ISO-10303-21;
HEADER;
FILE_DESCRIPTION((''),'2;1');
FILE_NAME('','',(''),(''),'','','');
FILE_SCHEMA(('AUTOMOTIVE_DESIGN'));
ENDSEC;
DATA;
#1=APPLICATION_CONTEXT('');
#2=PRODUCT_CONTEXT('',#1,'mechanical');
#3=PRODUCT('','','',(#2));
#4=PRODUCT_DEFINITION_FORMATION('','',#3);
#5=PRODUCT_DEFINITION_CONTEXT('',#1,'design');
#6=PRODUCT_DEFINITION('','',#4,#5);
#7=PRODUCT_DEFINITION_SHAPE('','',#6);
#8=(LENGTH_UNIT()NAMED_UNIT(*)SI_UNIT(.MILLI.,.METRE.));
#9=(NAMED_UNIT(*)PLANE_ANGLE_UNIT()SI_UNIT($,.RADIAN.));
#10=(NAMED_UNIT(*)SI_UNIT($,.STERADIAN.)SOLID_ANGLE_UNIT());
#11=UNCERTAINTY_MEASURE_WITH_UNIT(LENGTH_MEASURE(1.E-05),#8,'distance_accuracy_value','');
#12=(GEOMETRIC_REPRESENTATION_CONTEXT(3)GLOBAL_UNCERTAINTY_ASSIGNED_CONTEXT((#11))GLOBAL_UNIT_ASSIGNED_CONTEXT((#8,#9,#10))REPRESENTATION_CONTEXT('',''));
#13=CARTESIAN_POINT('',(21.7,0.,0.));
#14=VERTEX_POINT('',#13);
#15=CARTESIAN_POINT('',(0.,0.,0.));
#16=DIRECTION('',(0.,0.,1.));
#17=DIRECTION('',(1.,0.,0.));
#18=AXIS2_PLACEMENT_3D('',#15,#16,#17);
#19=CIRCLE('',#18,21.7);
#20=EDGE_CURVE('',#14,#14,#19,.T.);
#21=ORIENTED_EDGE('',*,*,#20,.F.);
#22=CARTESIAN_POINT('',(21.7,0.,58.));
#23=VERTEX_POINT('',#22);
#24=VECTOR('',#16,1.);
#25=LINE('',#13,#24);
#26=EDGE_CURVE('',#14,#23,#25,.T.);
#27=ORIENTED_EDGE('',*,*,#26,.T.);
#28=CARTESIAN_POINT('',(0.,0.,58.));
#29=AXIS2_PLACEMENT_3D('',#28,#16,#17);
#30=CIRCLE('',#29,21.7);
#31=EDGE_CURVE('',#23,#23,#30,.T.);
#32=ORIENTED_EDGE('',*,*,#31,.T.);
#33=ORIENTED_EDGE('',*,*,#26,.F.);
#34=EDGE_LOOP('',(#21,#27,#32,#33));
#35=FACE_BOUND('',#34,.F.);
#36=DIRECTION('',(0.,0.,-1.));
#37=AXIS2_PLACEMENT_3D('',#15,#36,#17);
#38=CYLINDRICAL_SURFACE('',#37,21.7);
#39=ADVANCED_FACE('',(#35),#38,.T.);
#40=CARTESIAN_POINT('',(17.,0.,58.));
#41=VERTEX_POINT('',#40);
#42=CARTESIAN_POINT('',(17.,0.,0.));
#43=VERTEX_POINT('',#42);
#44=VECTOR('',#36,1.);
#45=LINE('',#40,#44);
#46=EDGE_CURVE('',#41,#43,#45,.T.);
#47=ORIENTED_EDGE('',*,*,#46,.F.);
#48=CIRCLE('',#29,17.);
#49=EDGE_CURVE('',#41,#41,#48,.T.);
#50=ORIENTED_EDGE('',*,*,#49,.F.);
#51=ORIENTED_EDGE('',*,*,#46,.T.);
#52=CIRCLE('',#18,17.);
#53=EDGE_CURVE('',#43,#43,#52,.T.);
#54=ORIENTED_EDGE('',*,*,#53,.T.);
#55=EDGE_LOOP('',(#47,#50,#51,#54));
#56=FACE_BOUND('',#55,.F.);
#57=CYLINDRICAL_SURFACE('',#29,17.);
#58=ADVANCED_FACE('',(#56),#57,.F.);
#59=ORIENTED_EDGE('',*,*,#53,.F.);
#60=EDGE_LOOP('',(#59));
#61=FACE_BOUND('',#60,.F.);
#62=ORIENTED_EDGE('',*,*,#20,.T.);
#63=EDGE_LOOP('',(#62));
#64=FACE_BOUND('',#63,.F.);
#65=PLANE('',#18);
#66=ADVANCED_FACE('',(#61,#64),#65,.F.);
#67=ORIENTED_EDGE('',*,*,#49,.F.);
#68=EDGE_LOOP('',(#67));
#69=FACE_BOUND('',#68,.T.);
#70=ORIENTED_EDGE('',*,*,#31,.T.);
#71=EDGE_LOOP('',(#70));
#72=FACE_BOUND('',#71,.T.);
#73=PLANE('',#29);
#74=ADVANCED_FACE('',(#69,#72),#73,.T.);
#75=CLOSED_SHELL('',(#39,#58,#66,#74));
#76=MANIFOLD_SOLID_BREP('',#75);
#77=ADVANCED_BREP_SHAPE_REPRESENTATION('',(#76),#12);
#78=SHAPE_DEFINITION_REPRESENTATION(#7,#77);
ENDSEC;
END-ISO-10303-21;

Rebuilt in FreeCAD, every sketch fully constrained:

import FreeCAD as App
import Part
import Sketcher

V = App.Vector
Q = App.Units.Quantity

doc = App.newDocument("Part")
body = doc.addObject("PartDesign::Body", "Body")

sketch1 = doc.addObject("Sketcher::SketchObject", "Sketch")
body.addObject(sketch1)
sketch1.AttachmentSupport = (doc.XY_Plane, [""])
sketch1.MapMode = "FlatFace"
sketch1.addGeometry(Part.Circle(V(0, 0, 0), V(0, 0, 1), 22), False)
sketch1.addConstraint([
    Sketcher.Constraint("Coincident", 0, 3, -1, 1),
    Sketcher.Constraint("Diameter", 0, Q("43.4 mm")),
])
pad1 = doc.addObject("PartDesign::Pad", "Pad")
body.addObject(pad1)
pad1.Profile = sketch1
pad1.Length = 58

sketch2 = doc.addObject("Sketcher::SketchObject", "Sketch001")
body.addObject(sketch2)
sketch2.AttachmentSupport = (doc.XY_Plane, [""])
sketch2.MapMode = "FlatFace"
sketch2.AttachmentOffset = App.Placement(V(0, 0, 58), App.Rotation())
sketch2.addGeometry(Part.Circle(V(0, 0, 0), V(0, 0, 1), 17), False)
sketch2.addConstraint([
    Sketcher.Constraint("Coincident", 0, 3, -1, 1),
    Sketcher.Constraint("Diameter", 0, Q("34 mm")),
])
pocket1 = doc.addObject("PartDesign::Pocket", "Pocket")
body.addObject(pocket1)
pocket1.Profile = sketch2
pocket1.Length = 58

doc.recompute()
